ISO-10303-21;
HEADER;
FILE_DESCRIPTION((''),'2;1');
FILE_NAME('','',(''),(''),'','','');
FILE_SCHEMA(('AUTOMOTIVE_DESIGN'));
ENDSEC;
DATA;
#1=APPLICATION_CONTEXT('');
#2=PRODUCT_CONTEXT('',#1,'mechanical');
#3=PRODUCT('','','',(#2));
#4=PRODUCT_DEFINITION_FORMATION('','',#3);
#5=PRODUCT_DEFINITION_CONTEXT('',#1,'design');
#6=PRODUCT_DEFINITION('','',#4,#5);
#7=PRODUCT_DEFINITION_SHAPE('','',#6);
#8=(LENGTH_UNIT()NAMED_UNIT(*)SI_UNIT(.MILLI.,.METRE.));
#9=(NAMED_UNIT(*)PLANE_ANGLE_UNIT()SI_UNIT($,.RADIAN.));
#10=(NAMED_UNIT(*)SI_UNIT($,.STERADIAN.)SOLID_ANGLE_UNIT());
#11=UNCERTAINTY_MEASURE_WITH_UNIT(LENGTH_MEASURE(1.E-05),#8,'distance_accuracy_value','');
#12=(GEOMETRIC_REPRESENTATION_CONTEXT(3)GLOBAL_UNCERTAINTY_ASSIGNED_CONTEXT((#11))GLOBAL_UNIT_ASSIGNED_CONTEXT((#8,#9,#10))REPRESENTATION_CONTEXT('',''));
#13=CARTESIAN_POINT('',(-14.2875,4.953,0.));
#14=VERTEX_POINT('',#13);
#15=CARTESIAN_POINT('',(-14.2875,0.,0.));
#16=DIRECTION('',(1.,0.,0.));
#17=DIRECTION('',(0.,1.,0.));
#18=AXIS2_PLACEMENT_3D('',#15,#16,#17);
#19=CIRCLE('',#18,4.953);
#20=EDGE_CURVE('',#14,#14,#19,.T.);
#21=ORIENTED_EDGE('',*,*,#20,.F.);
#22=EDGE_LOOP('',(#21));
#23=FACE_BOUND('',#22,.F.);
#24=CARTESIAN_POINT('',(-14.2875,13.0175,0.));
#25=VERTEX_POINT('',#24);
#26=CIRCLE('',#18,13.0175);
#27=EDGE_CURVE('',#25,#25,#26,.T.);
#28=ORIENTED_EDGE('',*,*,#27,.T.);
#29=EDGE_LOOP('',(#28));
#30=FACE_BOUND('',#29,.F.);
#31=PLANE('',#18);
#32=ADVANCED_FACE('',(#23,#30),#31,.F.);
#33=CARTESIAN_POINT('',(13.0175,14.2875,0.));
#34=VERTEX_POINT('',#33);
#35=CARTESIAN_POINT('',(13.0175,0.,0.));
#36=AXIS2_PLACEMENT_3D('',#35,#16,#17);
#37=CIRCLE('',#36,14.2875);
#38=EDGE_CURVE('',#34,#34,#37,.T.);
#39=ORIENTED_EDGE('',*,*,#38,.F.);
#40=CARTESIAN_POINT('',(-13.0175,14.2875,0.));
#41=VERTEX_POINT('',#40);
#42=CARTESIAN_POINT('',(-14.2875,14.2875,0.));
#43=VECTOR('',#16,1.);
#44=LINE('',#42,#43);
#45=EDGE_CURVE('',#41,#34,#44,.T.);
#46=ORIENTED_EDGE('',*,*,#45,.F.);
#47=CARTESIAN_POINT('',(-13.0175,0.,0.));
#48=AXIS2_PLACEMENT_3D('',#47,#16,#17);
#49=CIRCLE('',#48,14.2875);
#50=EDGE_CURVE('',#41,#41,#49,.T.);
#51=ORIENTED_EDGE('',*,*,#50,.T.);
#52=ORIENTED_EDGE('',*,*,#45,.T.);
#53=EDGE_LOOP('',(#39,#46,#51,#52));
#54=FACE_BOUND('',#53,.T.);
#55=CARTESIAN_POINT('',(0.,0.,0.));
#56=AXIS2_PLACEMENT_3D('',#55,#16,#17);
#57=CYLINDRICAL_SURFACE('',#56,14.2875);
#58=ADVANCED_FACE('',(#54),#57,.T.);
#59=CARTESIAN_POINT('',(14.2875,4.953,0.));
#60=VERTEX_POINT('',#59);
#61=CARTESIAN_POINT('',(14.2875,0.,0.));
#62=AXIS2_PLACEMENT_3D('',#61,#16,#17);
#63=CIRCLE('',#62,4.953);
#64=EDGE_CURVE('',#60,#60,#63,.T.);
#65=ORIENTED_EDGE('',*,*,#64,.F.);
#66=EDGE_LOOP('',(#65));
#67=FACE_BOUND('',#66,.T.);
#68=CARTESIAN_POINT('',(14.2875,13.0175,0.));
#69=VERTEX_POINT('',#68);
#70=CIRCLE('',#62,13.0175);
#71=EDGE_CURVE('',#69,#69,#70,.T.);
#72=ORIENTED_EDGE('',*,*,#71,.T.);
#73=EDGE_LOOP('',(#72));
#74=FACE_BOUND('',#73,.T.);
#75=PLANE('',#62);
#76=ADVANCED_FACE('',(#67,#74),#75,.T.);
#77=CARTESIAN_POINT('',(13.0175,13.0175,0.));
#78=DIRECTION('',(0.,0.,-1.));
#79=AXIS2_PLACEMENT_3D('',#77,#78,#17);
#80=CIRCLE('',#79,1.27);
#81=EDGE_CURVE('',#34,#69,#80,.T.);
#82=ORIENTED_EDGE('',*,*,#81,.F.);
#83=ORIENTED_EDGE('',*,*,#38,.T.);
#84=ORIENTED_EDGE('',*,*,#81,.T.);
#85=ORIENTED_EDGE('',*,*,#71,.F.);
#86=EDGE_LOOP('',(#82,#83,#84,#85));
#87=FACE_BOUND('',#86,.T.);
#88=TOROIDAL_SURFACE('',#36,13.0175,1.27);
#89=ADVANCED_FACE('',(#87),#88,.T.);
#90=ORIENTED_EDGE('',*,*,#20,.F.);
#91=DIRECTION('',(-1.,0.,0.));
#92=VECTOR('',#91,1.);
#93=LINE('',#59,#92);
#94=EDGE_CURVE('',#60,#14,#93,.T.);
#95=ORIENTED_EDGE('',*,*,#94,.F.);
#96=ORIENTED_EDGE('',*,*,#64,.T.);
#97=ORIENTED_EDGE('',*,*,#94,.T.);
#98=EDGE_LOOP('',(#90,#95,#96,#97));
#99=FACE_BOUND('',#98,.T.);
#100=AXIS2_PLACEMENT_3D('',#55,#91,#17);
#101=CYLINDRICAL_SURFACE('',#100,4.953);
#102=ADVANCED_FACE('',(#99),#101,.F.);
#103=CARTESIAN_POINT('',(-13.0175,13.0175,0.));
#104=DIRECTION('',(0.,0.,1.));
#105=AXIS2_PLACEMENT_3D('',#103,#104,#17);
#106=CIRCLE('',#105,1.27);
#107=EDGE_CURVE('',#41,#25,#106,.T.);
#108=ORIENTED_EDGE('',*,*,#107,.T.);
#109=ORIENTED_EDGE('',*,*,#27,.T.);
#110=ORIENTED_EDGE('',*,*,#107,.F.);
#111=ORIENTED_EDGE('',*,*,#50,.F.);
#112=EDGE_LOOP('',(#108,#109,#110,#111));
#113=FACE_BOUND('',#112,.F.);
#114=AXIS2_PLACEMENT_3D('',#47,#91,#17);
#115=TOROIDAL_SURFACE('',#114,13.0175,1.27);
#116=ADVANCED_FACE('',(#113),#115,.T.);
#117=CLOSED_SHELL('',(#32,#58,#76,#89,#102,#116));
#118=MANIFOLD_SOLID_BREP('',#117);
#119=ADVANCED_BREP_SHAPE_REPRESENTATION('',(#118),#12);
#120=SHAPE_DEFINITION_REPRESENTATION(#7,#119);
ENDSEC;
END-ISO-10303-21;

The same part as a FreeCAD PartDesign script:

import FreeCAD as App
import Part
import Sketcher
Q = App.Units.Quantity


def edges_at(feature, points):
    """Names of the edges that pass closest to the given points."""
    edges = feature.Shape.Edges
    near = lambda p: min(range(len(edges)), key=lambda i: edges[i].distToShape(Part.Vertex(*p))[0])
    return sorted({f"Edge{near(p) + 1}" for p in points})

doc = App.newDocument("Part")
body = doc.addObject("PartDesign::Body", "Body")

# Sketch on YZ plane
sketch1 = body.newObject("Sketcher::SketchObject", "Sketch")
sketch1.AttachmentSupport = (doc.getObject("YZ_Plane"), [""])
sketch1.MapMode = "FlatFace"
sketch1.addGeometry([
    Part.Circle(App.Vector(0, 0, 0), App.Vector(0, 0, 1), 14.3),
    Part.Circle(App.Vector(0, 0, 0), App.Vector(0, 0, 1), 5),
], False)
sketch1.addConstraint([
    Sketcher.Constraint("Coincident", 0, 3, -1, 1),
    Sketcher.Constraint("Coincident", 1, 3, -1, 1),
    Sketcher.Constraint("Diameter", 1, Q("0.39 in")),
    Sketcher.Constraint("Diameter", 0, Q("1.125 in")),
])
pad1 = body.newObject("PartDesign::Pad", "Pad")
pad1.Profile = sketch1
pad1.Length = Q("1.125 in")
pad1.Midplane = True
doc.recompute()

fillet = body.newObject("PartDesign::Fillet", "Fillet")
fillet.Base = (pad1, edges_at(pad1, [(14.287, -14.287, 0), (-14.287, -14.287, 0)]))
fillet.Radius = Q("0.05 in")

doc.recompute()
